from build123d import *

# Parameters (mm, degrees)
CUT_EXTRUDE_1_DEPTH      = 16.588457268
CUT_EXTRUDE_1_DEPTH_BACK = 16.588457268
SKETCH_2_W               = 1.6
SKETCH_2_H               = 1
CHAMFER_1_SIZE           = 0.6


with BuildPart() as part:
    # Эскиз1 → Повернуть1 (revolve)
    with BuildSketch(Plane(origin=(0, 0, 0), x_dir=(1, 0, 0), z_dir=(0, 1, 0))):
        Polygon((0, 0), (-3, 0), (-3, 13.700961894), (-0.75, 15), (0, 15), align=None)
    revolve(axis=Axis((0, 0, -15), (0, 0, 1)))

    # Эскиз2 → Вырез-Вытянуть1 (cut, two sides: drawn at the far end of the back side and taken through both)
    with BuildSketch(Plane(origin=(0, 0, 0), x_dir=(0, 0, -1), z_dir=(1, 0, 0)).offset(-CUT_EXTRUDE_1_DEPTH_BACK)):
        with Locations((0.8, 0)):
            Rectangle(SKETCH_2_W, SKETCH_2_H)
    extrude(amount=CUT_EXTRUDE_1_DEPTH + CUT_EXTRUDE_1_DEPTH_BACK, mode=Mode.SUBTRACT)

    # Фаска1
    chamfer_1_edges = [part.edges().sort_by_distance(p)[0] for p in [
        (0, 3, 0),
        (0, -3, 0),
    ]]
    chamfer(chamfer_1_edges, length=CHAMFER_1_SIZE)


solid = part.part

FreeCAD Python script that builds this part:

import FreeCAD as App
import Part
import Sketcher
Q = App.Units.Quantity


def edges_at(feature, points):
    """Names of the edges that pass closest to the given points."""
    edges = feature.Shape.Edges
    near = lambda p: min(range(len(edges)), key=lambda i: edges[i].distToShape(Part.Vertex(*p))[0])
    return sorted({f"Edge{near(p) + 1}" for p in points})

doc = App.newDocument("Part")
body = doc.addObject("PartDesign::Body", "Body")

# Sketch on XZ plane
sketch1 = doc.addObject("Sketcher::SketchObject", "Sketch")
body.addObject(sketch1)
sketch1.AttachmentSupport = (doc.XZ_Plane, [""])
sketch1.MapMode = "FlatFace"
sketch1.addGeometry(Part.LineSegment(App.Vector(-3, 0, 0), App.Vector(0, 0, 0)), False)
sketch1.addGeometry(Part.LineSegment(App.Vector(0, 0, 0), App.Vector(0, -15, 0)), False)
sketch1.addGeometry(Part.LineSegment(App.Vector(0, -15, 0), App.Vector(-0.8, -15, 0)), False)
sketch1.addGeometry(Part.LineSegment(App.Vector(-0.8, -15, 0), App.Vector(-3, -13.7, 0)), False)
sketch1.addGeometry(Part.LineSegment(App.Vector(-3, -13.7, 0), App.Vector(-3, 0, 0)), False)
sketch1.addConstraint(Sketcher.Constraint("Coincident", 0, 2, 1, 1))
sketch1.addConstraint(Sketcher.Constraint("Coincident", 1, 2, 2, 1))
sketch1.addConstraint(Sketcher.Constraint("Coincident", 2, 2, 3, 1))
sketch1.addConstraint(Sketcher.Constraint("Coincident", 3, 2, 4, 1))
sketch1.addConstraint(Sketcher.Constraint("Coincident", 4, 2, 0, 1))
sketch1.addConstraint(Sketcher.Constraint("Horizontal", 0))
sketch1.addConstraint(Sketcher.Constraint("Vertical", 1))
sketch1.addConstraint(Sketcher.Constraint("Horizontal", 2))
sketch1.addConstraint(Sketcher.Constraint("Vertical", 4))
sketch1.addConstraint(Sketcher.Constraint("Coincident", 0, 2, -1, 1))
sketch1.addConstraint(Sketcher.Constraint("DistanceX", 0, 1, 0, 2, 3.0))
sketch1.addConstraint(Sketcher.Constraint("DistanceY", 1, 2, 1, 1, 15.0))
sketch1.addConstraint(Sketcher.Constraint("Angle", 3, Q("150 deg")))
sketch1.addConstraint(Sketcher.Constraint("DistanceX", 2, 2, 2, 1, 0.75))
revolution = doc.addObject("PartDesign::Revolution", "Revolution")
body.addObject(revolution)
revolution.Profile = sketch1
revolution.ReferenceAxis = (sketch1, ["V_Axis"])
revolution.Angle = 360

# Sketch on YZ plane
sketch2 = doc.addObject("Sketcher::SketchObject", "Sketch001")
body.addObject(sketch2)
sketch2.AttachmentSupport = (doc.YZ_Plane, [""])
sketch2.MapMode = "FlatFace"
sketch2.addGeometry(Part.LineSegment(App.Vector(0.5, 0, 0), App.Vector(-0.5, 0, 0)), False)
sketch2.addGeometry(Part.LineSegment(App.Vector(-0.5, 0, 0), App.Vector(-0.5, -1.6, 0)), False)
sketch2.addGeometry(Part.LineSegment(App.Vector(-0.5, -1.6, 0), App.Vector(0.5, -1.6, 0)), False)
sketch2.addGeometry(Part.LineSegment(App.Vector(0.5, -1.6, 0), App.Vector(0.5, 0, 0)), False)
sketch2.addConstraint(Sketcher.Constraint("Coincident", 0, 2, 1, 1))
sketch2.addConstraint(Sketcher.Constraint("Coincident", 1, 2, 2, 1))
sketch2.addConstraint(Sketcher.Constraint("Coincident", 2, 2, 3, 1))
sketch2.addConstraint(Sketcher.Constraint("Coincident", 3, 2, 0, 1))
sketch2.addConstraint(Sketcher.Constraint("Horizontal", 0))
sketch2.addConstraint(Sketcher.Constraint("Vertical", 1))
sketch2.addConstraint(Sketcher.Constraint("Horizontal", 2))
sketch2.addConstraint(Sketcher.Constraint("Vertical", 3))
sketch2.addConstraint(Sketcher.Constraint("Symmetric", 0, 2, 3, 2, -1, 1))
sketch2.addConstraint(Sketcher.Constraint("DistanceX", 0, 2, 0, 1, 1.0))
sketch2.addConstraint(Sketcher.Constraint("DistanceY", 1, 2, 1, 1, 1.6))
pocket1 = doc.addObject("PartDesign::Pocket", "Pocket")
body.addObject(pocket1)
pocket1.Profile = sketch2
pocket1.Type = "ThroughAll"
pocket1.Midplane = True
doc.recompute()

chamfer = doc.addObject("PartDesign::Chamfer", "Chamfer")
body.addObject(chamfer)
chamfer.Base = (pocket1, edges_at(pocket1, [(0, 3, 0), (0, -3, 0)]))
chamfer.Size = 0.6

doc.recompute()
